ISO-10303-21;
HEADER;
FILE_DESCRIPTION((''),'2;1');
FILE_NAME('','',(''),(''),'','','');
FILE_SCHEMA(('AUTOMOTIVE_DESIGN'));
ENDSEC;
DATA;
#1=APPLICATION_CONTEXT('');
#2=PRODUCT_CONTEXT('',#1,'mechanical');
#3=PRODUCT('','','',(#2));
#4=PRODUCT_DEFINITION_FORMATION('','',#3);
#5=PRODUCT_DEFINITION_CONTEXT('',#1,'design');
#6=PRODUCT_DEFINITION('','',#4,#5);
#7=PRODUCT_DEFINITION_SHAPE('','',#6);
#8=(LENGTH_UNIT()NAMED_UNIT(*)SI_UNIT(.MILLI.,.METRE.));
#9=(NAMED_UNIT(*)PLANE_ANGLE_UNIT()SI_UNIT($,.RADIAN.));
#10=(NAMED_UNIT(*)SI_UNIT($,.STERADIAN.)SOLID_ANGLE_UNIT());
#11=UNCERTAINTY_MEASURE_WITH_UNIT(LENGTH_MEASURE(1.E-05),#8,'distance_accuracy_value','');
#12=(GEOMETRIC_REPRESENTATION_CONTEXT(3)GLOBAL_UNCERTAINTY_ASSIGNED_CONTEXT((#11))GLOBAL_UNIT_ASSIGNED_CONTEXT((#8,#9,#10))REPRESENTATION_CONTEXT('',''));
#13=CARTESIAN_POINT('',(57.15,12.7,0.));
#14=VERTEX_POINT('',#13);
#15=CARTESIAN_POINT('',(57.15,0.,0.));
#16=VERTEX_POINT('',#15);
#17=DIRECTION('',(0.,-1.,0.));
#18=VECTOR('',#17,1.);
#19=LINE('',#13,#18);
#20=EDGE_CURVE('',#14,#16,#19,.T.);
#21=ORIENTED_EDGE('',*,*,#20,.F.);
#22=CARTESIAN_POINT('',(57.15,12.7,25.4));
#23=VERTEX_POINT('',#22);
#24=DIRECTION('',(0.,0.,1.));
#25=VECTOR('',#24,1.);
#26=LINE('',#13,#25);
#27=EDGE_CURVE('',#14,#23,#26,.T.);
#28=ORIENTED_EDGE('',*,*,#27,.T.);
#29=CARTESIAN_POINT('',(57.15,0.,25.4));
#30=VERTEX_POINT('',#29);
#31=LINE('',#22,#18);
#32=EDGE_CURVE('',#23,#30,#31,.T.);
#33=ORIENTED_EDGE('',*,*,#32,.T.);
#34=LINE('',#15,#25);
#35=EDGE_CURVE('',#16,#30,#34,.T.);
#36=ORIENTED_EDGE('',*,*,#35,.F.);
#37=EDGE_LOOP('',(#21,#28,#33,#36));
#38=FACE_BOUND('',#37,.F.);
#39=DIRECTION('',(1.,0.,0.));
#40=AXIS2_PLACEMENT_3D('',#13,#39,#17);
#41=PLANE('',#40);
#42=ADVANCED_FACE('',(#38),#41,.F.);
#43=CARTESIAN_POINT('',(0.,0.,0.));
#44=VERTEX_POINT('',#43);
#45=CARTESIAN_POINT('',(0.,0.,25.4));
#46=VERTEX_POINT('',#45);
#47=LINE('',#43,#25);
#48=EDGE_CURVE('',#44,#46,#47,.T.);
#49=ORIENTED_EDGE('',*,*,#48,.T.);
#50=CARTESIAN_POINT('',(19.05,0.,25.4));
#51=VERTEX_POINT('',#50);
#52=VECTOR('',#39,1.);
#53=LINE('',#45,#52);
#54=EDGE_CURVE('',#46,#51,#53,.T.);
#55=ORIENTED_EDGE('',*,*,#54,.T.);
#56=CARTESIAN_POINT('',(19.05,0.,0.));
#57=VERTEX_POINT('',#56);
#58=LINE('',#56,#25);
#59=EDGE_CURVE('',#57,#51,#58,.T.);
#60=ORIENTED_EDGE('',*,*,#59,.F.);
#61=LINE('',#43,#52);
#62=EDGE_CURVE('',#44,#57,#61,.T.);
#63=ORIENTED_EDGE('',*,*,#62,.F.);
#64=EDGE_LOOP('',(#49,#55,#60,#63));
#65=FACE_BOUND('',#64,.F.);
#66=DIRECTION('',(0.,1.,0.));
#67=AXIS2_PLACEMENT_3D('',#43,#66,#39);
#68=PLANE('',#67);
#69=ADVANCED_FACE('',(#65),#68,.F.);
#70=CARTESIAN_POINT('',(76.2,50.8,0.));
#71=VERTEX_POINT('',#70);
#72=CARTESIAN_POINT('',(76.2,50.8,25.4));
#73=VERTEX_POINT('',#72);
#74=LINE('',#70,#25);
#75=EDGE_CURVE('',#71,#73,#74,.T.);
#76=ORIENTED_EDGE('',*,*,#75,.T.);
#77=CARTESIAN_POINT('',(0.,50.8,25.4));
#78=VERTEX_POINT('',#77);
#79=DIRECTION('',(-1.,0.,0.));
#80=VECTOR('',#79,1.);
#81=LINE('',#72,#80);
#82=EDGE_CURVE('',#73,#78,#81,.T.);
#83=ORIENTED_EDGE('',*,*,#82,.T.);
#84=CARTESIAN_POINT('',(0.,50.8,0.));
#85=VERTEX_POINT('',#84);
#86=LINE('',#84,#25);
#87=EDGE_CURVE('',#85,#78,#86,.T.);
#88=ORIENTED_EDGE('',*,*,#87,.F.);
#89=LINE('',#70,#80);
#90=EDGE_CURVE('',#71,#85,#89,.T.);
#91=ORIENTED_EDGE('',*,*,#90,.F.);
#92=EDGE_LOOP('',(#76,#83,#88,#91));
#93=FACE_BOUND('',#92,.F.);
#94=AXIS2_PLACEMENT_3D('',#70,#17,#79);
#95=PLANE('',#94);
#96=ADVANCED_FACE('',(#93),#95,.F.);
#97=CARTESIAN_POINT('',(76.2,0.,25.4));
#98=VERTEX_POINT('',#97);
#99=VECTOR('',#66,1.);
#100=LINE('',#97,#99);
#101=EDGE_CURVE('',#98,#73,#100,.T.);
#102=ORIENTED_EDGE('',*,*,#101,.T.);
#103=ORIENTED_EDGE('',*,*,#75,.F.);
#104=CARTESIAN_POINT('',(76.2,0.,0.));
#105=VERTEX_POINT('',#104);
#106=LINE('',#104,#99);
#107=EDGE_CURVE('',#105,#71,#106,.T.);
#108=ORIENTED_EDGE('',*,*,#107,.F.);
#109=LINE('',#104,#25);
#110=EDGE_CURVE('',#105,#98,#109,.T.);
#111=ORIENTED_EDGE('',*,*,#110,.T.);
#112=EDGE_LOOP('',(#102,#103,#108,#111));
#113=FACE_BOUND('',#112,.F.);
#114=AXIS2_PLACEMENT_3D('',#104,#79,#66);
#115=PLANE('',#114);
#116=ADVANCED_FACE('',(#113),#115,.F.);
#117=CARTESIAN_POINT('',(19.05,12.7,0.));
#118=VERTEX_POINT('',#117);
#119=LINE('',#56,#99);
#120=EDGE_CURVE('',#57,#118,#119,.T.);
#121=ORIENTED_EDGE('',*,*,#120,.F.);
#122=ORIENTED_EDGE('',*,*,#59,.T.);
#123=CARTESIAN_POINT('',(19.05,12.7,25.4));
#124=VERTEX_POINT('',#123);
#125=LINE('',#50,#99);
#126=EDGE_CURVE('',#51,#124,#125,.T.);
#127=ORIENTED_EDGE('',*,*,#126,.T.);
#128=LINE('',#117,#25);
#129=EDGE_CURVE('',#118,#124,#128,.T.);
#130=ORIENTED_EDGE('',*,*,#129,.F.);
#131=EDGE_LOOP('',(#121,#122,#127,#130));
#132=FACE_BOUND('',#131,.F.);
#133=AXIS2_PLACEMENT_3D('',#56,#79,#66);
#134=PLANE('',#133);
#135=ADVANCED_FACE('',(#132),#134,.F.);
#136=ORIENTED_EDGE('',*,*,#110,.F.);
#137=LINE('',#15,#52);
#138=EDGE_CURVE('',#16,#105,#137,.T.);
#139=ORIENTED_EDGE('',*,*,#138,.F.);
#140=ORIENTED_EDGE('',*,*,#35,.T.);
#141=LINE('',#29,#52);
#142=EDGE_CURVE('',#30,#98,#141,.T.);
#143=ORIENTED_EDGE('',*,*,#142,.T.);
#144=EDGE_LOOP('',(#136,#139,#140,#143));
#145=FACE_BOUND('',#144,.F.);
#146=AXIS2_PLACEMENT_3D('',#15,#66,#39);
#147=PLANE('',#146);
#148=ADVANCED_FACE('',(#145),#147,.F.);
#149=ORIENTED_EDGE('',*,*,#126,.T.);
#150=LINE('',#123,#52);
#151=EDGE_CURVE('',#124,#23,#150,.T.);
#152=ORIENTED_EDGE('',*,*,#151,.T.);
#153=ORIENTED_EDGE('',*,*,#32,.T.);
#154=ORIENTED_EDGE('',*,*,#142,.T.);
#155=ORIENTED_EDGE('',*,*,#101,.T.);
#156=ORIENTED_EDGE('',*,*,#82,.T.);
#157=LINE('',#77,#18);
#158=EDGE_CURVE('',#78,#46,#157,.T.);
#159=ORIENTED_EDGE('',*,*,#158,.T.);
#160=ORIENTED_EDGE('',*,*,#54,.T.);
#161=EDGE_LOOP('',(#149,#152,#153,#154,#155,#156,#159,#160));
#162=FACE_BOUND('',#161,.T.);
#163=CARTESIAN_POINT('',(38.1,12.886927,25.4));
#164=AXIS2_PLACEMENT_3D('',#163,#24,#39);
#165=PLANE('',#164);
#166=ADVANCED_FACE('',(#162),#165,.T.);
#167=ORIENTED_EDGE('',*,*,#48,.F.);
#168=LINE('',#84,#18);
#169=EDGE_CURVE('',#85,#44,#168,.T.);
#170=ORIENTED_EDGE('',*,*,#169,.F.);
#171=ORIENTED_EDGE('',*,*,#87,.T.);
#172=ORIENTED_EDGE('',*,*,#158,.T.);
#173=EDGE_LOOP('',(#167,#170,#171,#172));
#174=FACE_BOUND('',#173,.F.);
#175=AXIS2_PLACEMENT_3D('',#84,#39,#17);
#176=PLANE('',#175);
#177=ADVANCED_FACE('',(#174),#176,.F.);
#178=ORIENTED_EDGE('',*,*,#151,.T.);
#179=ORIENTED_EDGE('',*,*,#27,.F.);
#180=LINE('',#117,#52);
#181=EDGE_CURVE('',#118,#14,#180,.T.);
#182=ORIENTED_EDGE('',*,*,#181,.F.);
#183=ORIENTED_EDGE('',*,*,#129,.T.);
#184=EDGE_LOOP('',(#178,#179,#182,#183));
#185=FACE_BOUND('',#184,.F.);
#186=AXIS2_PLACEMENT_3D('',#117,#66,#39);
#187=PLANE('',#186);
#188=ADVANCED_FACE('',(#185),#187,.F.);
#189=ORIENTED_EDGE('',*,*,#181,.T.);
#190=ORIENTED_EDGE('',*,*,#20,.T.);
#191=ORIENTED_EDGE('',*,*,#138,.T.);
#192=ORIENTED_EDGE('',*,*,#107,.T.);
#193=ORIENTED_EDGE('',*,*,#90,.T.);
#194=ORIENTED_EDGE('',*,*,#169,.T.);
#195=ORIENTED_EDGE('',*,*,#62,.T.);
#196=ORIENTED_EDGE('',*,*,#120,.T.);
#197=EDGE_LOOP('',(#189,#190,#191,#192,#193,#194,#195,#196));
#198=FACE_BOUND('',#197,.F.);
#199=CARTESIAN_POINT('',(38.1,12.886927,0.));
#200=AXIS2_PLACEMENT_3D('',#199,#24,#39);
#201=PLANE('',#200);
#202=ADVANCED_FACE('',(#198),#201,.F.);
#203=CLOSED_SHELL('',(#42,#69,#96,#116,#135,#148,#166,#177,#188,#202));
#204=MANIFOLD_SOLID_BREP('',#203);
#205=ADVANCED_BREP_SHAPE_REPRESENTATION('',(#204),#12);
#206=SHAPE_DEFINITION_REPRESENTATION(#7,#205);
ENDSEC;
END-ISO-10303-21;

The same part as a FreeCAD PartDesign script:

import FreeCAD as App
import Part
import Sketcher

V = App.Vector
Q = App.Units.Quantity


def add_polygon(sketch, points):
    """Adds a closed chain of lines whose ends are joined by coincident constraints."""
    first, n = sketch.GeometryCount, len(points)
    for a, b in zip(points, points[1:] + points[:1]):
        sketch.addGeometry(Part.LineSegment(App.Vector(*a, 0), App.Vector(*b, 0)), False)
    for i in range(n):
        sketch.addConstraint(Sketcher.Constraint("Coincident", first + i, 2, first + (i + 1) % n, 1))

doc = App.newDocument("Part")
body = doc.addObject("PartDesign::Body", "Body")

sketch1 = body.newObject("Sketcher::SketchObject", "Sketch")
sketch1.AttachmentSupport = (doc.getObject("XY_Plane"), [""])
sketch1.MapMode = "FlatFace"
add_polygon(sketch1, [(0, 0), (19, 0), (19, 13), (57, 13), (57, 0), (76, 0), (76, 51), (0, 51)])
sketch1.addConstraint([
    Sketcher.Constraint("Horizontal", 0),
    Sketcher.Constraint("Vertical", 1),
    Sketcher.Constraint("Horizontal", 2),
    Sketcher.Constraint("Vertical", 3),
    Sketcher.Constraint("Horizontal", 4),
    Sketcher.Constraint("Vertical", 5),
    Sketcher.Constraint("Horizontal", 6),
    Sketcher.Constraint("Vertical", 7),
    Sketcher.Constraint("Coincident", 7, 2, -1, 1),
    Sketcher.Constraint("PointOnObject", 3, 2, -1),
    Sketcher.Constraint("Equal", 0, 4),
    Sketcher.Constraint("DistanceX", 6, 2, 6, 1, Q("3 in")),
    Sketcher.Constraint("DistanceY", 5, 1, 5, 2, Q("2 in")),
    Sketcher.Constraint("DistanceX", 2, 1, 2, 2, Q("1.5 in")),
    Sketcher.Constraint("DistanceY", 1, 1, 1, 2, Q("0.5 in")),
])
pad1 = body.newObject("PartDesign::Pad", "Pad")
pad1.Profile = sketch1
pad1.Length = Q("1 in")

doc.recompute()
